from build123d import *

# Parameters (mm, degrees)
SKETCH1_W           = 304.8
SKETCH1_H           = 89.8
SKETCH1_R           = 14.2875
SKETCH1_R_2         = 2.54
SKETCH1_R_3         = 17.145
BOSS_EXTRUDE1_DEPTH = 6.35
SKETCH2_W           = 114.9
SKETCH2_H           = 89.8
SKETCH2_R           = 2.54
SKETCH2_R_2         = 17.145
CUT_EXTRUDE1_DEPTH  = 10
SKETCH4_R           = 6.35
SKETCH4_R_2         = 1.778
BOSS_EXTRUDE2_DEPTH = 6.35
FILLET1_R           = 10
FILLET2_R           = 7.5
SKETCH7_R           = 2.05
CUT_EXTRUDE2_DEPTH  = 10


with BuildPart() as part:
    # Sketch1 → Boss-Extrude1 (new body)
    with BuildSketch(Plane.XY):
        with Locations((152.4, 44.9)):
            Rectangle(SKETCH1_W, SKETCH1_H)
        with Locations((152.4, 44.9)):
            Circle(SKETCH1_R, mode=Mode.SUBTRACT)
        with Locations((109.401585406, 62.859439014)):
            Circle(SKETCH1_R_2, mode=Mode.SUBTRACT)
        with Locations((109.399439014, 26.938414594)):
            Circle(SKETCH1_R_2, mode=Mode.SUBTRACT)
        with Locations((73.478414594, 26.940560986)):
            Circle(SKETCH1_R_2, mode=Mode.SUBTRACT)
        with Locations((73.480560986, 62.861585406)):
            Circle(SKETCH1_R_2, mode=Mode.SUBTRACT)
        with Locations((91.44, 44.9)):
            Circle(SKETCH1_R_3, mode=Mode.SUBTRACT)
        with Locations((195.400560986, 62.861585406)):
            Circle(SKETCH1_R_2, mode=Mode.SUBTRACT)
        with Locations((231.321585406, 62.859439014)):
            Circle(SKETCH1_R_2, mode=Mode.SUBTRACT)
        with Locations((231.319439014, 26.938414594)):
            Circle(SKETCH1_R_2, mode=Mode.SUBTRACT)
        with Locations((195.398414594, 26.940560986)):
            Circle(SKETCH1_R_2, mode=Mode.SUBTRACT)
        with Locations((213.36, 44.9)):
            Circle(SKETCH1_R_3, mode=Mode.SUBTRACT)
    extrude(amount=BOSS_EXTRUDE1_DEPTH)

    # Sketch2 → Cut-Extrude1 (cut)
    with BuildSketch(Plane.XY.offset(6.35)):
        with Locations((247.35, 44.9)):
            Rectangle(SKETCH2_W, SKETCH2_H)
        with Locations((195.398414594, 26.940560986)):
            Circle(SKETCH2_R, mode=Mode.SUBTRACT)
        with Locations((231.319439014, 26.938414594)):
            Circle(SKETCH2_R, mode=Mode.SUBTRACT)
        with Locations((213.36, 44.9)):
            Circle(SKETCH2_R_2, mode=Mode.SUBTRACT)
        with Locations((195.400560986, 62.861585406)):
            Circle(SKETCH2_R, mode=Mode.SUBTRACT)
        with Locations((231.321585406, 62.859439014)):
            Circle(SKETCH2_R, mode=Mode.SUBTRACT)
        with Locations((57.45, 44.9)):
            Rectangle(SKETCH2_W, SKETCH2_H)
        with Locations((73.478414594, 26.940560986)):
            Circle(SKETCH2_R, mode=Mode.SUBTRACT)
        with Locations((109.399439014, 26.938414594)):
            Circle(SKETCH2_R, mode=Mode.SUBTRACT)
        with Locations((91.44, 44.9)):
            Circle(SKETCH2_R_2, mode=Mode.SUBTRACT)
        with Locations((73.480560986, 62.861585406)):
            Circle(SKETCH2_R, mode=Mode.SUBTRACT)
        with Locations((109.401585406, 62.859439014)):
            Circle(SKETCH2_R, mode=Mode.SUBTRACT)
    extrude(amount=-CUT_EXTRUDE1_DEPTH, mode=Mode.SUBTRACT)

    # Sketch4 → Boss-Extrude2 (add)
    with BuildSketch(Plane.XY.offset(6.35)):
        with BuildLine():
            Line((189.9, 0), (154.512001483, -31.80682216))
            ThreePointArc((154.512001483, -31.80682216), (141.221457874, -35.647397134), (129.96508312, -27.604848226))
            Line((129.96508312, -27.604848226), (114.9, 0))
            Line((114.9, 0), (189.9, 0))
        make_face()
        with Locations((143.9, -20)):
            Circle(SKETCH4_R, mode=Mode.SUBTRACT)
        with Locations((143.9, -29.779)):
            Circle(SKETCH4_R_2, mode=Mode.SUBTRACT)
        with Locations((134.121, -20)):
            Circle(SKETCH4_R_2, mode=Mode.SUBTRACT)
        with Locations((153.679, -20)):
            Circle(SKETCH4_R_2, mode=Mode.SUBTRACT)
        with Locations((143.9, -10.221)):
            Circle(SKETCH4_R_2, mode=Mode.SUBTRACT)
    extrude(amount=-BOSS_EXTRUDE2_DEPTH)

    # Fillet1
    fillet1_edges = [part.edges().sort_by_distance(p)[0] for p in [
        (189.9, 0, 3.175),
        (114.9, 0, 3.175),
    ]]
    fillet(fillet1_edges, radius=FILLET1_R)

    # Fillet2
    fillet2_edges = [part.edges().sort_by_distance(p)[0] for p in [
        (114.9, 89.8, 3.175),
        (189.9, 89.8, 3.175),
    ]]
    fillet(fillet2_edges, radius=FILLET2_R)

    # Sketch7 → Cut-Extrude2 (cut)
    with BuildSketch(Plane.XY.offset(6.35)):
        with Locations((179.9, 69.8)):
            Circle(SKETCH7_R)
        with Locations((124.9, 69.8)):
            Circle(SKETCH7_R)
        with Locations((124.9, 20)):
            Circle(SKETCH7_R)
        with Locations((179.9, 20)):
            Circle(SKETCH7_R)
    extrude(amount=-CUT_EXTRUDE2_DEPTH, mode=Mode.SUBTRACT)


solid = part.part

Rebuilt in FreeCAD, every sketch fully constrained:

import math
import FreeCAD as App
import Part
import Sketcher

V = App.Vector
Q = App.Units.Quantity


def edges_at(feature, points):
    """Names of the edges that pass closest to the given points."""
    edges = feature.Shape.Edges
    near = lambda p: min(range(len(edges)), key=lambda i: edges[i].distToShape(Part.Vertex(*p))[0])
    return sorted({f"Edge{near(p) + 1}" for p in points})

doc = App.newDocument("Part")
body = doc.addObject("PartDesign::Body", "Body")

# Sketch on XY plane
sketch1 = body.newObject("Sketcher::SketchObject", "Sketch")
sketch1.AttachmentSupport = (doc.getObject("XY_Plane"), [""])
sketch1.MapMode = "FlatFace"
sketch1.addGeometry([
    Part.LineSegment(V(0, 89.8, 0), V(0, 0, 0)),  # 0
    Part.LineSegment(V(0, 0, 0), V(304.8, 0, 0)),  # 1
    Part.LineSegment(V(304.8, 0, 0), V(304.8, 89.8, 0)),  # 2
    Part.LineSegment(V(304.8, 89.8, 0), V(0, 89.8, 0)),  # 3
    Part.Circle(V(73.5, 26.9, 0), V(0, 0, 1), 2.5),  # 4
    Part.Circle(V(109.4, 26.9, 0), V(0, 0, 1), 2.5),  # 5
    Part.Circle(V(91.4, 44.9, 0), V(0, 0, 1), 17.1),  # 6
    Part.Circle(V(195.4, 26.9, 0), V(0, 0, 1), 2.5),  # 7
    Part.Circle(V(231.3, 26.9, 0), V(0, 0, 1), 2.5),  # 8
    Part.Circle(V(152.4, 44.9, 0), V(0, 0, 1), 14.3),  # 9
    Part.Circle(V(213.4, 44.9, 0), V(0, 0, 1), 17.1),  # 10
    Part.Circle(V(73.5, 62.9, 0), V(0, 0, 1), 2.5),  # 11
    Part.Circle(V(109.4, 62.9, 0), V(0, 0, 1), 2.5),  # 12
    Part.Circle(V(195.4, 62.9, 0), V(0, 0, 1), 2.5),  # 13
    Part.Circle(V(231.3, 62.9, 0), V(0, 0, 1), 2.5),  # 14
], False)
sketch1.addConstraint([
    Sketcher.Constraint("Coincident", 0, 2, 1, 1),
    Sketcher.Constraint("Coincident", 1, 2, 2, 1),
    Sketcher.Constraint("Coincident", 2, 2, 3, 1),
    Sketcher.Constraint("Coincident", 3, 2, 0, 1),
    Sketcher.Constraint("Vertical", 0),
    Sketcher.Constraint("Horizontal", 1),
    Sketcher.Constraint("Vertical", 2),
    Sketcher.Constraint("Horizontal", 3),
    Sketcher.Constraint("Coincident", 0, 2, -1, 1),
    Sketcher.Constraint("Equal", 4, 5),
    Sketcher.Constraint("Equal", 5, 7),
    Sketcher.Constraint("Equal", 7, 8),
    Sketcher.Constraint("Equal", 6, 10),
    Sketcher.Constraint("Equal", 8, 11),
    Sketcher.Constraint("Equal", 11, 12),
    Sketcher.Constraint("Equal", 12, 13),
    Sketcher.Constraint("Equal", 13, 14),
    Sketcher.Constraint("Horizontal", 4, 3, 7, 3),
    Sketcher.Constraint("Horizontal", 5, 3, 8, 3),
    Sketcher.Constraint("Horizontal", 6, 3, 9, 3),
    Sketcher.Constraint("Horizontal", 9, 3, 10, 3),
    Sketcher.Constraint("Horizontal", 11, 3, 13, 3),
    Sketcher.Constraint("Horizontal", 12, 3, 14, 3),
    Sketcher.Constraint("Diameter", 4, Q("0.2 in")),
    Sketcher.Constraint("Diameter", 6, Q("1.35 in")),
    Sketcher.Constraint("DistanceX", 1, 1, 1, 2, Q("12 in")),
    Sketcher.Constraint("Diameter", 9, Q("1.125 in")),
    Sketcher.Constraint("DistanceX", -1, 1, 9, 3, Q("6 in")),
    Sketcher.Constraint("DistanceX", -1, 1, 6, 3, Q("3.6 in")),
    Sketcher.Constraint("DistanceX", -1, 1, 10, 3, Q("8.4 in")),
    Sketcher.Constraint("DistanceX", 4, 3, 7, 3, Q("4.8 in")),
    Sketcher.Constraint("DistanceX", 5, 3, 8, 3, Q("4.8 in")),
    Sketcher.Constraint("DistanceY", 0, 2, 0, 1, 89.8),
    Sketcher.Constraint("DistanceY", -1, 1, 6, 3, 44.9),
    Sketcher.Constraint("DistanceY", -1, 1, 4, 3, 26.940561),
    Sketcher.Constraint("DistanceX", -1, 1, 5, 3, 109.399439),
    Sketcher.Constraint("DistanceX", -1, 1, 11, 3, 73.480561),
    Sketcher.Constraint("DistanceY", -1, 1, 12, 3, 62.859439),
    Sketcher.Constraint("DistanceX", -1, 1, 13, 3, 195.400561),
    Sketcher.Constraint("DistanceY", 5, 3, 11, 3, 35.923171),
    Sketcher.Constraint("DistanceX", 4, 3, 12, 3, 35.923171),
    Sketcher.Constraint("DistanceX", 7, 3, 14, 3, 35.923171),
    Sketcher.Constraint("DistanceX", -1, 1, 4, 3, 73.478415),
    Sketcher.Constraint("DistanceY", -1, 1, 5, 3, 26.938415),
])
pad1 = body.newObject("PartDesign::Pad", "Pad")
pad1.Profile = sketch1
pad1.Length = Q("0.25 in")

# Sketch on XY plane
sketch2 = body.newObject("Sketcher::SketchObject", "Sketch001")
sketch2.AttachmentSupport = (doc.getObject("XY_Plane"), [""])
sketch2.MapMode = "FlatFace"
sketch2.AttachmentOffset = App.Placement(V(0, 0, 0.25 * 25.4), App.Rotation())
sketch2.addGeometry([
    Part.LineSegment(V(189.9, 89.8, 0), V(189.9, 0, 0)),  # 0
    Part.LineSegment(V(189.9, 0, 0), V(304.8, 0, 0)),  # 1
    Part.LineSegment(V(304.8, 0, 0), V(304.8, 89.8, 0)),  # 2
    Part.LineSegment(V(304.8, 89.8, 0), V(189.9, 89.8, 0)),  # 3
    Part.Circle(V(195.4, 26.9, 0), V(0, 0, 1), 2.5),  # 4
    Part.Circle(V(231.3, 26.9, 0), V(0, 0, 1), 2.5),  # 5
    Part.Circle(V(213.4, 44.9, 0), V(0, 0, 1), 17.1),  # 6
    Part.Circle(V(195.4, 62.9, 0), V(0, 0, 1), 2.5),  # 7
    Part.Circle(V(231.3, 62.9, 0), V(0, 0, 1), 2.5),  # 8
    Part.LineSegment(V(0, 89.8, 0), V(0, 0, 0)),  # 9
    Part.LineSegment(V(0, 0, 0), V(114.9, 0, 0)),  # 10
    Part.LineSegment(V(114.9, 0, 0), V(114.9, 89.8, 0)),  # 11
    Part.LineSegment(V(114.9, 89.8, 0), V(0, 89.8, 0)),  # 12
    Part.Circle(V(73.5, 26.9, 0), V(0, 0, 1), 2.5),  # 13
    Part.Circle(V(109.4, 26.9, 0), V(0, 0, 1), 2.5),  # 14
    Part.Circle(V(91.4, 44.9, 0), V(0, 0, 1), 17.1),  # 15
    Part.Circle(V(73.5, 62.9, 0), V(0, 0, 1), 2.5),  # 16
    Part.Circle(V(109.4, 62.9, 0), V(0, 0, 1), 2.5),  # 17
], False)
sketch2.addConstraint([
    Sketcher.Constraint("Coincident", 0, 2, 1, 1),
    Sketcher.Constraint("Coincident", 1, 2, 2, 1),
    Sketcher.Constraint("Coincident", 2, 2, 3, 1),
    Sketcher.Constraint("Coincident", 3, 2, 0, 1),
    Sketcher.Constraint("Coincident", 9, 2, 10, 1),
    Sketcher.Constraint("Coincident", 10, 2, 11, 1),
    Sketcher.Constraint("Coincident", 11, 2, 12, 1),
    Sketcher.Constraint("Coincident", 12, 2, 9, 1),
    Sketcher.Constraint("Vertical", 0),
    Sketcher.Constraint("Horizontal", 1),
    Sketcher.Constraint("Vertical", 2),
    Sketcher.Constraint("Horizontal", 3),
    Sketcher.Constraint("Vertical", 9),
    Sketcher.Constraint("Horizontal", 10),
    Sketcher.Constraint("Vertical", 11),
    Sketcher.Constraint("Horizontal", 12),
    Sketcher.Constraint("Coincident", 9, 2, -1, 1),
    Sketcher.Constraint("Equal", 4, 5),
    Sketcher.Constraint("Equal", 5, 7),
    Sketcher.Constraint("Equal", 7, 8),
    Sketcher.Constraint("Equal", 8, 13),
    Sketcher.Constraint("Equal", 13, 14),
    Sketcher.Constraint("Equal", 6, 15),
    Sketcher.Constraint("Equal", 14, 16),
    Sketcher.Constraint("Equal", 16, 17),
    Sketcher.Constraint("PointOnObject", 0, 2, -1),
    Sketcher.Constraint("Horizontal", 4, 3, 13, 3),
    Sketcher.Constraint("Horizontal", 5, 3, 14, 3),
    Sketcher.Constraint("Horizontal", 6, 3, 15, 3),
    Sketcher.Constraint("Horizontal", 7, 3, 16, 3),
    Sketcher.Constraint("Horizontal", 8, 3, 17, 3),
    Sketcher.Constraint("Horizontal", 3, 2, 11, 2),
    Sketcher.Constraint("Equal", 3, 10),
    Sketcher.Constraint("Diameter", 4, Q("0.2 in")),
    Sketcher.Constraint("Diameter", 6, Q("1.35 in")),
    Sketcher.Constraint("DistanceX", -1, 1, 1, 2, Q("12 in")),
    Sketcher.Constraint("DistanceX", -1, 1, 6, 3, Q("8.4 in")),
    Sketcher.Constraint("DistanceX", -1, 1, 15, 3, Q("3.6 in")),
    Sketcher.Constraint("DistanceX", 13, 3, 4, 3, Q("4.8 in")),
    Sketcher.Constraint("DistanceX", 14, 3, 5, 3, Q("4.8 in")),
    Sketcher.Constraint("DistanceX", 16, 3, 7, 3, Q("4.8 in")),
    Sketcher.Constraint("DistanceX", 1, 1, 1, 2, 114.9),
    Sketcher.Constraint("DistanceY", 0, 2, 0, 1, 89.8),
    Sketcher.Constraint("DistanceY", -1, 1, 6, 3, 44.9),
    Sketcher.Constraint("DistanceY", -1, 1, 4, 3, 26.940561),
    Sketcher.Constraint("DistanceX", -1, 1, 5, 3, 231.319439),
    Sketcher.Constraint("DistanceX", -1, 1, 7, 3, 195.400561),
    Sketcher.Constraint("DistanceY", -1, 1, 8, 3, 62.859439),
    Sketcher.Constraint("DistanceY", 5, 3, 7, 3, 35.923171),
    Sketcher.Constraint("DistanceX", 4, 3, 8, 3, 35.923171),
    Sketcher.Constraint("DistanceX", 13, 3, 17, 3, 35.923171),
    Sketcher.Constraint("DistanceX", -1, 1, 4, 3, 195.398415),
    Sketcher.Constraint("DistanceY", -1, 1, 5, 3, 26.938415),
])
pocket1 = body.newObject("PartDesign::Pocket", "Pocket")
pocket1.Profile = sketch2
pocket1.Length = 10

# Sketch on XY plane
sketch3 = body.newObject("Sketcher::SketchObject", "Sketch002")
sketch3.AttachmentSupport = (doc.getObject("XY_Plane"), [""])
sketch3.MapMode = "FlatFace"
sketch3.AttachmentOffset = App.Placement(V(0, 0, 0.25 * 25.4), App.Rotation())
sketch3.addGeometry([
    Part.LineSegment(V(154.5, -31.8, 0), V(189.9, 0, 0)),  # 0
    Part.LineSegment(V(189.9, 0, 0), V(114.9, 0, 0)),  # 1
    Part.LineSegment(V(114.9, 0, 0), V(130, -27.6, 0)),  # 2
    Part.ArcOfCircle(Part.Circle(V(143.9, -20, 0), V(0, 0, 1), 15.9), math.radians(-151), math.radians(-48)),  # 3
    Part.Circle(V(153.7, -20, 0), V(0, 0, 1), 1.8),  # 4
    Part.Circle(V(143.9, -29.8, 0), V(0, 0, 1), 1.8),  # 5
    Part.Circle(V(143.9, -20, 0), V(0, 0, 1), 6.3),  # 6
    Part.Circle(V(134.1, -20, 0), V(0, 0, 1), 1.8),  # 7
    Part.Circle(V(143.9, -10.2, 0), V(0, 0, 1), 1.8),  # 8
], False)
sketch3.addConstraint([
    Sketcher.Constraint("Coincident", 0, 2, 1, 1),
    Sketcher.Constraint("Coincident", 1, 2, 2, 1),
    Sketcher.Constraint("Tangent", 2, 2, 3, 1),
    Sketcher.Constraint("Tangent", 3, 2, 0, 1),
    Sketcher.Constraint("Horizontal", 1),
    Sketcher.Constraint("Coincident", 6, 3, 3, 3),
    Sketcher.Constraint("Equal", 4, 5),
    Sketcher.Constraint("Equal", 5, 7),
    Sketcher.Constraint("Equal", 7, 8),
    Sketcher.Constraint("PointOnObject", 0, 2, -1),
    Sketcher.Constraint("Horizontal", 3, 3, 4, 3),
    Sketcher.Constraint("Horizontal", 6, 3, 7, 3),
    Sketcher.Constraint("Vertical", 3, 3, 5, 3),
    Sketcher.Constraint("Vertical", 6, 3, 8, 3),
    Sketcher.Constraint("Diameter", 6, Q("0.5 in")),
    Sketcher.Constraint("Diameter", 4, Q("0.14 in")),
    Sketcher.Constraint("Radius", 3, Q("0.625 in")),
    Sketcher.Constraint("DistanceX", 7, 3, 4, 3, Q("0.77 in")),
    Sketcher.Constraint("DistanceY", 5, 3, 8, 3, Q("0.77 in")),
    Sketcher.Constraint("DistanceX", 3, 3, 4, 3, Q("0.385 in")),
    Sketcher.Constraint("DistanceY", 5, 3, 3, 3, Q("0.385 in")),
    Sketcher.Constraint("DistanceX", 1, 2, 1, 1, 75.0),
    Sketcher.Constraint("DistanceX", -1, 1, 3, 3, 143.9),
    Sketcher.Constraint("DistanceY", 3, 3, -1, 1, 20.0),
    Sketcher.Constraint("DistanceX", -1, 1, 0, 2, 189.9),
])
pad2 = body.newObject("PartDesign::Pad", "Pad001")
pad2.Profile = sketch3
pad2.Length = Q("0.25 in")
pad2.Reversed = True
doc.recompute()

fillet = body.newObject("PartDesign::Fillet", "Fillet")
fillet.Base = (pad2, edges_at(pad2, [(189.9, 0, 3.175), (114.9, 0, 3.175)]))
fillet.Radius = 10
doc.recompute()

fillet2 = body.newObject("PartDesign::Fillet", "Fillet001")
fillet2.Base = (fillet, edges_at(fillet, [(114.9, 89.8, 3.175), (189.9, 89.8, 3.175)]))
fillet2.Radius = 7.5

# Sketch on XY plane
sketch4 = body.newObject("Sketcher::SketchObject", "Sketch003")
sketch4.AttachmentSupport = (doc.getObject("XY_Plane"), [""])
sketch4.MapMode = "FlatFace"
sketch4.AttachmentOffset = App.Placement(V(0, 0, 0.25 * 25.4), App.Rotation())
sketch4.addGeometry([
    Part.Circle(V(179.9, 69.8, 0), V(0, 0, 1), 2),
    Part.Circle(V(124.9, 69.8, 0), V(0, 0, 1), 2),
    Part.Circle(V(124.9, 20, 0), V(0, 0, 1), 2),
    Part.Circle(V(179.9, 20, 0), V(0, 0, 1), 2),
], False)
sketch4.addConstraint([
    Sketcher.Constraint("Equal", 0, 1),
    Sketcher.Constraint("Equal", 1, 2),
    Sketcher.Constraint("Equal", 2, 3),
    Sketcher.Constraint("Horizontal", 0, 3, 1, 3),
    Sketcher.Constraint("Horizontal", 2, 3, 3, 3),
    Sketcher.Constraint("Vertical", 1, 3, 2, 3),
    Sketcher.Constraint("Vertical", 0, 3, 3, 3),
    Sketcher.Constraint("Diameter", 0, 4.1),
    Sketcher.Constraint("DistanceX", -1, 1, 0, 3, 179.9),
    Sketcher.Constraint("DistanceY", -1, 1, 0, 3, 69.8),
    Sketcher.Constraint("DistanceX", -1, 1, 1, 3, 124.9),
    Sketcher.Constraint("DistanceY", -1, 1, 2, 3, 20.0),
])
pocket2 = body.newObject("PartDesign::Pocket", "Pocket001")
pocket2.Profile = sketch4
pocket2.Length = 10

doc.recompute()
